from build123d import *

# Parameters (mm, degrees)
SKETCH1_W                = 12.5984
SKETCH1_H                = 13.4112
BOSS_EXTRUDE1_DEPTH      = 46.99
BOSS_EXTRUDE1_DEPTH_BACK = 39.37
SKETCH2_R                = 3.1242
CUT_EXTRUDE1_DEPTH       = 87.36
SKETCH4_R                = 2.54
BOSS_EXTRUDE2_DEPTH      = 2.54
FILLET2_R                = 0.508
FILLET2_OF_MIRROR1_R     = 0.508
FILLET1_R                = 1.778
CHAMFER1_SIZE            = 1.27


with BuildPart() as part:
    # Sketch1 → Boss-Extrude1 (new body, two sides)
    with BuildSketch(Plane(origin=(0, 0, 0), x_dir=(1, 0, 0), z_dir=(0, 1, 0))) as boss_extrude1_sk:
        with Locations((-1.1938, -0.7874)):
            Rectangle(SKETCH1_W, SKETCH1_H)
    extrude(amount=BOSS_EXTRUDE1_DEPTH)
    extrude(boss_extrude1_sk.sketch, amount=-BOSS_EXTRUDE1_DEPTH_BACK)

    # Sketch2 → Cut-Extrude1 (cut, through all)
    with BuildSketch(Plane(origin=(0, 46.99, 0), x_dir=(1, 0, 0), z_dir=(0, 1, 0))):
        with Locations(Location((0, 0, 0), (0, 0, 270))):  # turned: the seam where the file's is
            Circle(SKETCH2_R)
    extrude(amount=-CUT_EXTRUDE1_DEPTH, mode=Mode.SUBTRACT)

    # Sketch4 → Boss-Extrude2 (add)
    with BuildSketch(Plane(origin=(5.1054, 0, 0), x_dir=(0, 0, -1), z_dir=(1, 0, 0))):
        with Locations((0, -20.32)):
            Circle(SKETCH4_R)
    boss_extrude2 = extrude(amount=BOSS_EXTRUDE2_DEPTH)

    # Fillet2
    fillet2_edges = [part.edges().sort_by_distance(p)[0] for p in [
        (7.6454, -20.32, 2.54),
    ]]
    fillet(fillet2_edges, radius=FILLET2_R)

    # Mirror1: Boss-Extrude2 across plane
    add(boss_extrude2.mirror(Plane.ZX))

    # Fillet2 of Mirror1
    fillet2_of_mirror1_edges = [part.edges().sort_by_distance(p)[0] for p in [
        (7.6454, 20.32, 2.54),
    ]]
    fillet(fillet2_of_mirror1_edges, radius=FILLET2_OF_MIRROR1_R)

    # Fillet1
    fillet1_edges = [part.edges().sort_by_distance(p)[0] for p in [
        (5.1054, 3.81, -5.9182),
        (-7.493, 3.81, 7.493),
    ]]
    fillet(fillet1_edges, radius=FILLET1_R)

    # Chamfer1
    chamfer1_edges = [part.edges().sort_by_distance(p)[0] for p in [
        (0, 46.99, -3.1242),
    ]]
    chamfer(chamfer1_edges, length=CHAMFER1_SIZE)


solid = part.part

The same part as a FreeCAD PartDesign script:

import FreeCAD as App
import Part
import Sketcher
from FreeCAD import Vector
Q = App.Units.Quantity


def edges_at(feature, points):
    """Names of the edges that pass closest to the given points."""
    edges = feature.Shape.Edges
    near = lambda p: min(range(len(edges)), key=lambda i: edges[i].distToShape(Part.Vertex(*p))[0])
    return sorted({f"Edge{near(p) + 1}" for p in points})

doc = App.newDocument("Part")
body = doc.addObject("PartDesign::Body", "Body")

# Sketch on XZ plane
sketch1 = doc.addObject("Sketcher::SketchObject", "Sketch")
body.addObject(sketch1)
sketch1.AttachmentSupport = (doc.XZ_Plane, [""])
sketch1.MapMode = "FlatFace"
sketch1.addGeometry([
    Part.LineSegment(Vector(-7, -6, 0), Vector(-7, 7, 0)),
    Part.LineSegment(Vector(-7, 7, 0), Vector(5, 7, 0)),
    Part.LineSegment(Vector(5, 7, 0), Vector(5, -6, 0)),
    Part.LineSegment(Vector(5, -6, 0), Vector(-7, -6, 0)),
], False)
sketch1.addConstraint([
    Sketcher.Constraint("Coincident", 0, 2, 1, 1),
    Sketcher.Constraint("Coincident", 1, 2, 2, 1),
    Sketcher.Constraint("Coincident", 2, 2, 3, 1),
    Sketcher.Constraint("Coincident", 3, 2, 0, 1),
    Sketcher.Constraint("Vertical", 0),
    Sketcher.Constraint("Horizontal", 1),
    Sketcher.Constraint("Vertical", 2),
    Sketcher.Constraint("Horizontal", 3),
    Sketcher.Constraint("DistanceX", 1, 1, 1, 2, Q("0.496 in")),
    Sketcher.Constraint("DistanceY", 0, 1, 0, 2, Q("0.528 in")),
    Sketcher.Constraint("DistanceX", 0, 2, -1, 1, Q("0.295 in")),
    Sketcher.Constraint("DistanceY", -1, 1, 0, 2, Q("0.295 in")),
])
pad1 = doc.addObject("PartDesign::Pad", "Pad")
body.addObject(pad1)
pad1.Profile = sketch1
pad1.Type = "TwoLengths"
pad1.Length = Q("1.85 in")
pad1.Length2 = Q("1.55 in")
pad1.Reversed = True

# Sketch on XZ plane
sketch2 = doc.addObject("Sketcher::SketchObject", "Sketch001")
body.addObject(sketch2)
sketch2.AttachmentSupport = (doc.XZ_Plane, [""])
sketch2.MapMode = "FlatFace"
sketch2.AttachmentOffset = App.Placement(Vector(0, 0, -1.85 * 25.4), App.Rotation())
sketch2.addGeometry(Part.Circle(Vector(0, 0, 0), Vector(0, 0, 1), 3.1), False)
sketch2.addConstraint([
    Sketcher.Constraint("Coincident", 0, 3, -1, 1),
    Sketcher.Constraint("Diameter", 0, Q("0.246 in")),
])
pocket1 = doc.addObject("PartDesign::Pocket", "Pocket")
body.addObject(pocket1)
pocket1.Profile = sketch2
pocket1.Type = "ThroughAll"
pocket1.Reversed = True

# Sketch on YZ plane
sketch3 = doc.addObject("Sketcher::SketchObject", "Sketch002")
body.addObject(sketch3)
sketch3.AttachmentSupport = (doc.YZ_Plane, [""])
sketch3.MapMode = "FlatFace"
sketch3.AttachmentOffset = App.Placement(Vector(0, 0, 0.201 * 25.4), App.Rotation())
sketch3.addGeometry(Part.Circle(Vector(-20.3, 0, 0), Vector(0, 0, 1), 2.5), False)
sketch3.addConstraint([
    Sketcher.Constraint("PointOnObject", 0, 3, -1),
    Sketcher.Constraint("Diameter", 0, Q("0.2 in")),
    Sketcher.Constraint("DistanceX", 0, 3, -1, 1, Q("0.8 in")),
])
pad2 = doc.addObject("PartDesign::Pad", "Pad001")
body.addObject(pad2)
pad2.Profile = sketch3
pad2.Length = Q("0.1 in")
doc.recompute()

fillet = doc.addObject("PartDesign::Fillet", "Fillet")
body.addObject(fillet)
fillet.Base = (pad2, edges_at(pad2, [(7.645, -20.32, 2.54)]))
fillet.Radius = Q("0.02 in")
doc.recompute()

mirrored = doc.addObject("PartDesign::Mirrored", "Mirrored")
body.addObject(mirrored)
mirrored.Originals = [pad2]
mirrored.MirrorPlane = (doc.XZ_Plane, [""])
body.Tip = mirrored
doc.recompute()

fillet2 = doc.addObject("PartDesign::Fillet", "Fillet001")
body.addObject(fillet2)
fillet2.Base = (mirrored, edges_at(mirrored, [(7.645, 20.32, 2.54)]))
fillet2.Radius = Q("0.02 in")
doc.recompute()

fillet3 = doc.addObject("PartDesign::Fillet", "Fillet002")
body.addObject(fillet3)
fillet3.Base = (fillet2, edges_at(fillet2, [(5.105, 3.81, -5.918), (-7.493, 3.81, 7.493)]))
fillet3.Radius = Q("0.07 in")
doc.recompute()

chamfer = doc.addObject("PartDesign::Chamfer", "Chamfer")
body.addObject(chamfer)
chamfer.Base = (fillet3, edges_at(fillet3, [(0, 46.99, -3.124)]))
chamfer.Size = Q("0.05 in")

doc.recompute()
